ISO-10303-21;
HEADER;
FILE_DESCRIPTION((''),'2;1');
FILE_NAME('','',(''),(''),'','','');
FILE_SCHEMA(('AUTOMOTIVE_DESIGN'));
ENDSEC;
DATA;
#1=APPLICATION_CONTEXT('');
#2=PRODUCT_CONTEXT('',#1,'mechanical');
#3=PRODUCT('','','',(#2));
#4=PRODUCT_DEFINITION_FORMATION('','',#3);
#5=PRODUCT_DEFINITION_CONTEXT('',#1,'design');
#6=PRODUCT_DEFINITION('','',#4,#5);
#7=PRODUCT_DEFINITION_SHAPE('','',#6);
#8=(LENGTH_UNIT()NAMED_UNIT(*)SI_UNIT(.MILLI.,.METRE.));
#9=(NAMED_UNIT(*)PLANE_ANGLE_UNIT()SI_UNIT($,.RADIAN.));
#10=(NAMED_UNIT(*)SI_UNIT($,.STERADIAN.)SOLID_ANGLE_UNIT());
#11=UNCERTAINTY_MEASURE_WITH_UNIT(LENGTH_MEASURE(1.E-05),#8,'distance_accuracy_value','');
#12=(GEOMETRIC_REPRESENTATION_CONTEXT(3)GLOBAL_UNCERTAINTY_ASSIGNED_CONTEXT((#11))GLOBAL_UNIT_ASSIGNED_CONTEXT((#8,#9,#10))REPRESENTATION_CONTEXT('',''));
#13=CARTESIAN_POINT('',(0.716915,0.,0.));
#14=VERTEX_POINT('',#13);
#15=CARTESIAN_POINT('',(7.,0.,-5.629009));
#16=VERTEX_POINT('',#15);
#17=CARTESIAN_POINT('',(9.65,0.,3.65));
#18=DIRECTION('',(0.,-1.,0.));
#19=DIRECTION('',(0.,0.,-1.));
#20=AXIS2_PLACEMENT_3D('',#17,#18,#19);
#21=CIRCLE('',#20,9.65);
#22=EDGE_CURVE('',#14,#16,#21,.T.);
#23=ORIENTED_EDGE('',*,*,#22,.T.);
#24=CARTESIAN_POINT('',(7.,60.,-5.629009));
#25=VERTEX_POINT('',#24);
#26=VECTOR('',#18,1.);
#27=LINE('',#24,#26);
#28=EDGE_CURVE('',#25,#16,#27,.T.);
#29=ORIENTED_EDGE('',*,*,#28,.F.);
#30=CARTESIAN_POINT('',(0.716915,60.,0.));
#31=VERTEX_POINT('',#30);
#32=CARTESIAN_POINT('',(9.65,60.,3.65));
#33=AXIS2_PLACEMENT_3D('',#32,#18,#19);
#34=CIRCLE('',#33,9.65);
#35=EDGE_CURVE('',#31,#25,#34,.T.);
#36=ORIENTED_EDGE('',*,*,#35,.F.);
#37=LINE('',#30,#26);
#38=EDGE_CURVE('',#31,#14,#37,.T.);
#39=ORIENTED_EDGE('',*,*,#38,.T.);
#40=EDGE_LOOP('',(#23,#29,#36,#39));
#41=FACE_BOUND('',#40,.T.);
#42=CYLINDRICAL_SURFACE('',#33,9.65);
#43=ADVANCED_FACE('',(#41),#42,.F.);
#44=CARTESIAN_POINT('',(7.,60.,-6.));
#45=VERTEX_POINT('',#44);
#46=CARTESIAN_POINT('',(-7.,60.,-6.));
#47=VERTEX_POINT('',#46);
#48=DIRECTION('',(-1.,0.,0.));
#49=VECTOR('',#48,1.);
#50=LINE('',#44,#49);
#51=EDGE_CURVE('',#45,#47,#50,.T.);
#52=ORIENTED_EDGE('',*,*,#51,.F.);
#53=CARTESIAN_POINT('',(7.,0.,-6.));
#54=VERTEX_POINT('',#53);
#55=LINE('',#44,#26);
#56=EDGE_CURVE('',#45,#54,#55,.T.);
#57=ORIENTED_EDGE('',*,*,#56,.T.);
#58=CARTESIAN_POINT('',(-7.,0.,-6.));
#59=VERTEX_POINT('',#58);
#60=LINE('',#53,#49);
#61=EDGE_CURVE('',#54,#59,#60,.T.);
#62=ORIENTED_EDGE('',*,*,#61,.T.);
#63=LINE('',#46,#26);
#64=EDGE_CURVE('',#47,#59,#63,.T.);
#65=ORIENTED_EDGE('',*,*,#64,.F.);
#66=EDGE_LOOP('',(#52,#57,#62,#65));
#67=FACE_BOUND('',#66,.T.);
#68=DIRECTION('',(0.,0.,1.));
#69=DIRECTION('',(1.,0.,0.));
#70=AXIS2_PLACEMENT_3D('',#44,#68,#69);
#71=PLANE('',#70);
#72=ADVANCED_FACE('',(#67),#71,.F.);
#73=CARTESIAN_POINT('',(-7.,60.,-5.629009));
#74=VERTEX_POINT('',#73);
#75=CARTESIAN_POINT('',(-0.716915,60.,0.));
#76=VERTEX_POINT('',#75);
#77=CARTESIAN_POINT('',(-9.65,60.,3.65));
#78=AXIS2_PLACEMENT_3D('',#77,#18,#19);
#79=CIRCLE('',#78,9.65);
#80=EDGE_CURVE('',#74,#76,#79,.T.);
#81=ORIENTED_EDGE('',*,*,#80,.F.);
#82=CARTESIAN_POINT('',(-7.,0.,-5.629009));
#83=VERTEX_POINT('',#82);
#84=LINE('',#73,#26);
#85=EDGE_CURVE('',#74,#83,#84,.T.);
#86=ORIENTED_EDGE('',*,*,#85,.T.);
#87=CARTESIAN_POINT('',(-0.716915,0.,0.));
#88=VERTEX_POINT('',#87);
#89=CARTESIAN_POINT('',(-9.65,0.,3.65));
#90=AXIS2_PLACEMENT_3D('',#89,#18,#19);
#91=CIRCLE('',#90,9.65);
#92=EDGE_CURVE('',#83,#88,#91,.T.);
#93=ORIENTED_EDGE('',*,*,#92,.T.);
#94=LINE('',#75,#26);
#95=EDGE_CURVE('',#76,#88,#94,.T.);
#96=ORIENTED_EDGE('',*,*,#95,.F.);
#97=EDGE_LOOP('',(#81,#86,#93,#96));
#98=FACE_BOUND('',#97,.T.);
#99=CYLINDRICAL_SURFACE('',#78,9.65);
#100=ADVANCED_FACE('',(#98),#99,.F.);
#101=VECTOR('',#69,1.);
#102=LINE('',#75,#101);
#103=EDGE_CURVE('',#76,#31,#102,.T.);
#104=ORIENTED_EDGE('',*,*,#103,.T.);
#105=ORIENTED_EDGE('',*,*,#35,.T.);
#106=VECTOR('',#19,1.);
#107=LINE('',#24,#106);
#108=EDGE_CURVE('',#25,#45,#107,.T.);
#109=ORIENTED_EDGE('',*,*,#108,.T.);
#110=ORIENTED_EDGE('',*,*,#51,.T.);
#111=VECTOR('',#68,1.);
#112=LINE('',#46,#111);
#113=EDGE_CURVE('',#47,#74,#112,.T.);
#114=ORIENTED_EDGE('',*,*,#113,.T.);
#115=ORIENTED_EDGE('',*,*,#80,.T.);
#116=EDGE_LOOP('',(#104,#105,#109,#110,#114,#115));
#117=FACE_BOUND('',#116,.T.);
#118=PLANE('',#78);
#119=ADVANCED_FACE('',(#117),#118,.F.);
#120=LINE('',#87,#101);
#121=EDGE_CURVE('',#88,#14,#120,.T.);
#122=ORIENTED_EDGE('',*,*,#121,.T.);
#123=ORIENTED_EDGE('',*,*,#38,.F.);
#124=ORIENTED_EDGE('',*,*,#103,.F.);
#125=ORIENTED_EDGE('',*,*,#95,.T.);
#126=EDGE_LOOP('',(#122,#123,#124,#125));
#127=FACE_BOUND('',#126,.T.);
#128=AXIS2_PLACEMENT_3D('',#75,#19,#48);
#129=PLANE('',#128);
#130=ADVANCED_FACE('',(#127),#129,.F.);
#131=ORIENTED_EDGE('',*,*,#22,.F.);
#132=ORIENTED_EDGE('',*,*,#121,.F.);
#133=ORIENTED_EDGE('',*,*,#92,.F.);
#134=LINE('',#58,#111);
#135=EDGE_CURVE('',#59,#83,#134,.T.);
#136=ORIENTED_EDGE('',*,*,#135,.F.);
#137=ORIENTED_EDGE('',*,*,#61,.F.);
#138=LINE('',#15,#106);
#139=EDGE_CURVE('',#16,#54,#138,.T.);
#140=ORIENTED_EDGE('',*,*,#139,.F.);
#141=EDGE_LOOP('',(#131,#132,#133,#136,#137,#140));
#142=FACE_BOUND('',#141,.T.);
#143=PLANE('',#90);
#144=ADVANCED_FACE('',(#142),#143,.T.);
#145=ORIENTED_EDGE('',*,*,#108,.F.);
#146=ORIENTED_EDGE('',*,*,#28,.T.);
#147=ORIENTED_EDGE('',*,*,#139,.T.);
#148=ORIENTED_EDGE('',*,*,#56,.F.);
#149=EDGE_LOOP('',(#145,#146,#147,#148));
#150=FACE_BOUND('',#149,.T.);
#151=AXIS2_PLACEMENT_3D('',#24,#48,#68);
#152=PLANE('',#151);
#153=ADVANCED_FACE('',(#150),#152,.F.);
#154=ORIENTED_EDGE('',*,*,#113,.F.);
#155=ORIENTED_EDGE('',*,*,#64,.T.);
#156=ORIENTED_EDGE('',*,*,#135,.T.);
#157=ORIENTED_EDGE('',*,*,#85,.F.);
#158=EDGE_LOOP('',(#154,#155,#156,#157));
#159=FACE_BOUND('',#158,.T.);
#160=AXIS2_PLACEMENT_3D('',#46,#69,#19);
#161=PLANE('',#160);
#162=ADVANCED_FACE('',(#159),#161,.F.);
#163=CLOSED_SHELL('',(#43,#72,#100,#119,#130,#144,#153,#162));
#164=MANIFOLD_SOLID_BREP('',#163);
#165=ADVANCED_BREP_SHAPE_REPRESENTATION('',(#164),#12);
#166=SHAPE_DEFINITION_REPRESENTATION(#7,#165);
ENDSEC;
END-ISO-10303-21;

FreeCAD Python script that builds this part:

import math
import FreeCAD as App
import Part
import Sketcher

V = App.Vector

doc = App.newDocument("Part")
body = doc.addObject("PartDesign::Body", "Body")

# Sketch on XZ plane
sketch1 = body.newObject("Sketcher::SketchObject", "Sketch")
sketch1.AttachmentSupport = (doc.getObject("XZ_Plane"), [""])
sketch1.MapMode = "FlatFace"
sketch1.addGeometry([
    Part.LineSegment(V(-0.72, 0, 0), V(0.72, 0, 0)),  # 0
    Part.ArcOfCircle(Part.Circle(V(9.65, 3.65, 0), V(0, 0, 1), 9.65), math.radians(-158), math.radians(-106)),  # 1
    Part.LineSegment(V(7, -5.63, 0), V(7, -6, 0)),  # 2
    Part.LineSegment(V(7, -6, 0), V(-7, -6, 0)),  # 3
    Part.LineSegment(V(-7, -6, 0), V(-7, -5.63, 0)),  # 4
    Part.ArcOfCircle(Part.Circle(V(-9.65, 3.65, 0), V(0, 0, 1), 9.65), math.radians(-74), math.radians(-22)),  # 5
], False)
sketch1.addConstraint([
    Sketcher.Constraint("Coincident", 0, 2, 1, 1),
    Sketcher.Constraint("Coincident", 1, 2, 2, 1),
    Sketcher.Constraint("Coincident", 2, 2, 3, 1),
    Sketcher.Constraint("Coincident", 3, 2, 4, 1),
    Sketcher.Constraint("Coincident", 4, 2, 5, 1),
    Sketcher.Constraint("Coincident", 5, 2, 0, 1),
    Sketcher.Constraint("Horizontal", 0),
    Sketcher.Constraint("Vertical", 2),
    Sketcher.Constraint("Horizontal", 3),
    Sketcher.Constraint("Vertical", 4),
    Sketcher.Constraint("Equal", 1, 5),
    Sketcher.Constraint("Symmetric", 0, 2, 5, 2, -1, 1),
    Sketcher.Constraint("Symmetric", 1, 2, 4, 2, -2),
    Sketcher.Constraint("DistanceX", 3, 2, 3, 1, 14.0),
    Sketcher.Constraint("Radius", 1, 9.65),
    Sketcher.Constraint("DistanceY", 2, 2, -1, 1, 6.0),
    Sketcher.Constraint("DistanceX", 5, 3, 1, 3, 19.3),
    Sketcher.Constraint("DistanceY", -1, 1, 1, 3, 3.65),
])
pad1 = body.newObject("PartDesign::Pad", "Pad")
pad1.Profile = sketch1
pad1.Length = 60
pad1.Reversed = True

doc.recompute()
